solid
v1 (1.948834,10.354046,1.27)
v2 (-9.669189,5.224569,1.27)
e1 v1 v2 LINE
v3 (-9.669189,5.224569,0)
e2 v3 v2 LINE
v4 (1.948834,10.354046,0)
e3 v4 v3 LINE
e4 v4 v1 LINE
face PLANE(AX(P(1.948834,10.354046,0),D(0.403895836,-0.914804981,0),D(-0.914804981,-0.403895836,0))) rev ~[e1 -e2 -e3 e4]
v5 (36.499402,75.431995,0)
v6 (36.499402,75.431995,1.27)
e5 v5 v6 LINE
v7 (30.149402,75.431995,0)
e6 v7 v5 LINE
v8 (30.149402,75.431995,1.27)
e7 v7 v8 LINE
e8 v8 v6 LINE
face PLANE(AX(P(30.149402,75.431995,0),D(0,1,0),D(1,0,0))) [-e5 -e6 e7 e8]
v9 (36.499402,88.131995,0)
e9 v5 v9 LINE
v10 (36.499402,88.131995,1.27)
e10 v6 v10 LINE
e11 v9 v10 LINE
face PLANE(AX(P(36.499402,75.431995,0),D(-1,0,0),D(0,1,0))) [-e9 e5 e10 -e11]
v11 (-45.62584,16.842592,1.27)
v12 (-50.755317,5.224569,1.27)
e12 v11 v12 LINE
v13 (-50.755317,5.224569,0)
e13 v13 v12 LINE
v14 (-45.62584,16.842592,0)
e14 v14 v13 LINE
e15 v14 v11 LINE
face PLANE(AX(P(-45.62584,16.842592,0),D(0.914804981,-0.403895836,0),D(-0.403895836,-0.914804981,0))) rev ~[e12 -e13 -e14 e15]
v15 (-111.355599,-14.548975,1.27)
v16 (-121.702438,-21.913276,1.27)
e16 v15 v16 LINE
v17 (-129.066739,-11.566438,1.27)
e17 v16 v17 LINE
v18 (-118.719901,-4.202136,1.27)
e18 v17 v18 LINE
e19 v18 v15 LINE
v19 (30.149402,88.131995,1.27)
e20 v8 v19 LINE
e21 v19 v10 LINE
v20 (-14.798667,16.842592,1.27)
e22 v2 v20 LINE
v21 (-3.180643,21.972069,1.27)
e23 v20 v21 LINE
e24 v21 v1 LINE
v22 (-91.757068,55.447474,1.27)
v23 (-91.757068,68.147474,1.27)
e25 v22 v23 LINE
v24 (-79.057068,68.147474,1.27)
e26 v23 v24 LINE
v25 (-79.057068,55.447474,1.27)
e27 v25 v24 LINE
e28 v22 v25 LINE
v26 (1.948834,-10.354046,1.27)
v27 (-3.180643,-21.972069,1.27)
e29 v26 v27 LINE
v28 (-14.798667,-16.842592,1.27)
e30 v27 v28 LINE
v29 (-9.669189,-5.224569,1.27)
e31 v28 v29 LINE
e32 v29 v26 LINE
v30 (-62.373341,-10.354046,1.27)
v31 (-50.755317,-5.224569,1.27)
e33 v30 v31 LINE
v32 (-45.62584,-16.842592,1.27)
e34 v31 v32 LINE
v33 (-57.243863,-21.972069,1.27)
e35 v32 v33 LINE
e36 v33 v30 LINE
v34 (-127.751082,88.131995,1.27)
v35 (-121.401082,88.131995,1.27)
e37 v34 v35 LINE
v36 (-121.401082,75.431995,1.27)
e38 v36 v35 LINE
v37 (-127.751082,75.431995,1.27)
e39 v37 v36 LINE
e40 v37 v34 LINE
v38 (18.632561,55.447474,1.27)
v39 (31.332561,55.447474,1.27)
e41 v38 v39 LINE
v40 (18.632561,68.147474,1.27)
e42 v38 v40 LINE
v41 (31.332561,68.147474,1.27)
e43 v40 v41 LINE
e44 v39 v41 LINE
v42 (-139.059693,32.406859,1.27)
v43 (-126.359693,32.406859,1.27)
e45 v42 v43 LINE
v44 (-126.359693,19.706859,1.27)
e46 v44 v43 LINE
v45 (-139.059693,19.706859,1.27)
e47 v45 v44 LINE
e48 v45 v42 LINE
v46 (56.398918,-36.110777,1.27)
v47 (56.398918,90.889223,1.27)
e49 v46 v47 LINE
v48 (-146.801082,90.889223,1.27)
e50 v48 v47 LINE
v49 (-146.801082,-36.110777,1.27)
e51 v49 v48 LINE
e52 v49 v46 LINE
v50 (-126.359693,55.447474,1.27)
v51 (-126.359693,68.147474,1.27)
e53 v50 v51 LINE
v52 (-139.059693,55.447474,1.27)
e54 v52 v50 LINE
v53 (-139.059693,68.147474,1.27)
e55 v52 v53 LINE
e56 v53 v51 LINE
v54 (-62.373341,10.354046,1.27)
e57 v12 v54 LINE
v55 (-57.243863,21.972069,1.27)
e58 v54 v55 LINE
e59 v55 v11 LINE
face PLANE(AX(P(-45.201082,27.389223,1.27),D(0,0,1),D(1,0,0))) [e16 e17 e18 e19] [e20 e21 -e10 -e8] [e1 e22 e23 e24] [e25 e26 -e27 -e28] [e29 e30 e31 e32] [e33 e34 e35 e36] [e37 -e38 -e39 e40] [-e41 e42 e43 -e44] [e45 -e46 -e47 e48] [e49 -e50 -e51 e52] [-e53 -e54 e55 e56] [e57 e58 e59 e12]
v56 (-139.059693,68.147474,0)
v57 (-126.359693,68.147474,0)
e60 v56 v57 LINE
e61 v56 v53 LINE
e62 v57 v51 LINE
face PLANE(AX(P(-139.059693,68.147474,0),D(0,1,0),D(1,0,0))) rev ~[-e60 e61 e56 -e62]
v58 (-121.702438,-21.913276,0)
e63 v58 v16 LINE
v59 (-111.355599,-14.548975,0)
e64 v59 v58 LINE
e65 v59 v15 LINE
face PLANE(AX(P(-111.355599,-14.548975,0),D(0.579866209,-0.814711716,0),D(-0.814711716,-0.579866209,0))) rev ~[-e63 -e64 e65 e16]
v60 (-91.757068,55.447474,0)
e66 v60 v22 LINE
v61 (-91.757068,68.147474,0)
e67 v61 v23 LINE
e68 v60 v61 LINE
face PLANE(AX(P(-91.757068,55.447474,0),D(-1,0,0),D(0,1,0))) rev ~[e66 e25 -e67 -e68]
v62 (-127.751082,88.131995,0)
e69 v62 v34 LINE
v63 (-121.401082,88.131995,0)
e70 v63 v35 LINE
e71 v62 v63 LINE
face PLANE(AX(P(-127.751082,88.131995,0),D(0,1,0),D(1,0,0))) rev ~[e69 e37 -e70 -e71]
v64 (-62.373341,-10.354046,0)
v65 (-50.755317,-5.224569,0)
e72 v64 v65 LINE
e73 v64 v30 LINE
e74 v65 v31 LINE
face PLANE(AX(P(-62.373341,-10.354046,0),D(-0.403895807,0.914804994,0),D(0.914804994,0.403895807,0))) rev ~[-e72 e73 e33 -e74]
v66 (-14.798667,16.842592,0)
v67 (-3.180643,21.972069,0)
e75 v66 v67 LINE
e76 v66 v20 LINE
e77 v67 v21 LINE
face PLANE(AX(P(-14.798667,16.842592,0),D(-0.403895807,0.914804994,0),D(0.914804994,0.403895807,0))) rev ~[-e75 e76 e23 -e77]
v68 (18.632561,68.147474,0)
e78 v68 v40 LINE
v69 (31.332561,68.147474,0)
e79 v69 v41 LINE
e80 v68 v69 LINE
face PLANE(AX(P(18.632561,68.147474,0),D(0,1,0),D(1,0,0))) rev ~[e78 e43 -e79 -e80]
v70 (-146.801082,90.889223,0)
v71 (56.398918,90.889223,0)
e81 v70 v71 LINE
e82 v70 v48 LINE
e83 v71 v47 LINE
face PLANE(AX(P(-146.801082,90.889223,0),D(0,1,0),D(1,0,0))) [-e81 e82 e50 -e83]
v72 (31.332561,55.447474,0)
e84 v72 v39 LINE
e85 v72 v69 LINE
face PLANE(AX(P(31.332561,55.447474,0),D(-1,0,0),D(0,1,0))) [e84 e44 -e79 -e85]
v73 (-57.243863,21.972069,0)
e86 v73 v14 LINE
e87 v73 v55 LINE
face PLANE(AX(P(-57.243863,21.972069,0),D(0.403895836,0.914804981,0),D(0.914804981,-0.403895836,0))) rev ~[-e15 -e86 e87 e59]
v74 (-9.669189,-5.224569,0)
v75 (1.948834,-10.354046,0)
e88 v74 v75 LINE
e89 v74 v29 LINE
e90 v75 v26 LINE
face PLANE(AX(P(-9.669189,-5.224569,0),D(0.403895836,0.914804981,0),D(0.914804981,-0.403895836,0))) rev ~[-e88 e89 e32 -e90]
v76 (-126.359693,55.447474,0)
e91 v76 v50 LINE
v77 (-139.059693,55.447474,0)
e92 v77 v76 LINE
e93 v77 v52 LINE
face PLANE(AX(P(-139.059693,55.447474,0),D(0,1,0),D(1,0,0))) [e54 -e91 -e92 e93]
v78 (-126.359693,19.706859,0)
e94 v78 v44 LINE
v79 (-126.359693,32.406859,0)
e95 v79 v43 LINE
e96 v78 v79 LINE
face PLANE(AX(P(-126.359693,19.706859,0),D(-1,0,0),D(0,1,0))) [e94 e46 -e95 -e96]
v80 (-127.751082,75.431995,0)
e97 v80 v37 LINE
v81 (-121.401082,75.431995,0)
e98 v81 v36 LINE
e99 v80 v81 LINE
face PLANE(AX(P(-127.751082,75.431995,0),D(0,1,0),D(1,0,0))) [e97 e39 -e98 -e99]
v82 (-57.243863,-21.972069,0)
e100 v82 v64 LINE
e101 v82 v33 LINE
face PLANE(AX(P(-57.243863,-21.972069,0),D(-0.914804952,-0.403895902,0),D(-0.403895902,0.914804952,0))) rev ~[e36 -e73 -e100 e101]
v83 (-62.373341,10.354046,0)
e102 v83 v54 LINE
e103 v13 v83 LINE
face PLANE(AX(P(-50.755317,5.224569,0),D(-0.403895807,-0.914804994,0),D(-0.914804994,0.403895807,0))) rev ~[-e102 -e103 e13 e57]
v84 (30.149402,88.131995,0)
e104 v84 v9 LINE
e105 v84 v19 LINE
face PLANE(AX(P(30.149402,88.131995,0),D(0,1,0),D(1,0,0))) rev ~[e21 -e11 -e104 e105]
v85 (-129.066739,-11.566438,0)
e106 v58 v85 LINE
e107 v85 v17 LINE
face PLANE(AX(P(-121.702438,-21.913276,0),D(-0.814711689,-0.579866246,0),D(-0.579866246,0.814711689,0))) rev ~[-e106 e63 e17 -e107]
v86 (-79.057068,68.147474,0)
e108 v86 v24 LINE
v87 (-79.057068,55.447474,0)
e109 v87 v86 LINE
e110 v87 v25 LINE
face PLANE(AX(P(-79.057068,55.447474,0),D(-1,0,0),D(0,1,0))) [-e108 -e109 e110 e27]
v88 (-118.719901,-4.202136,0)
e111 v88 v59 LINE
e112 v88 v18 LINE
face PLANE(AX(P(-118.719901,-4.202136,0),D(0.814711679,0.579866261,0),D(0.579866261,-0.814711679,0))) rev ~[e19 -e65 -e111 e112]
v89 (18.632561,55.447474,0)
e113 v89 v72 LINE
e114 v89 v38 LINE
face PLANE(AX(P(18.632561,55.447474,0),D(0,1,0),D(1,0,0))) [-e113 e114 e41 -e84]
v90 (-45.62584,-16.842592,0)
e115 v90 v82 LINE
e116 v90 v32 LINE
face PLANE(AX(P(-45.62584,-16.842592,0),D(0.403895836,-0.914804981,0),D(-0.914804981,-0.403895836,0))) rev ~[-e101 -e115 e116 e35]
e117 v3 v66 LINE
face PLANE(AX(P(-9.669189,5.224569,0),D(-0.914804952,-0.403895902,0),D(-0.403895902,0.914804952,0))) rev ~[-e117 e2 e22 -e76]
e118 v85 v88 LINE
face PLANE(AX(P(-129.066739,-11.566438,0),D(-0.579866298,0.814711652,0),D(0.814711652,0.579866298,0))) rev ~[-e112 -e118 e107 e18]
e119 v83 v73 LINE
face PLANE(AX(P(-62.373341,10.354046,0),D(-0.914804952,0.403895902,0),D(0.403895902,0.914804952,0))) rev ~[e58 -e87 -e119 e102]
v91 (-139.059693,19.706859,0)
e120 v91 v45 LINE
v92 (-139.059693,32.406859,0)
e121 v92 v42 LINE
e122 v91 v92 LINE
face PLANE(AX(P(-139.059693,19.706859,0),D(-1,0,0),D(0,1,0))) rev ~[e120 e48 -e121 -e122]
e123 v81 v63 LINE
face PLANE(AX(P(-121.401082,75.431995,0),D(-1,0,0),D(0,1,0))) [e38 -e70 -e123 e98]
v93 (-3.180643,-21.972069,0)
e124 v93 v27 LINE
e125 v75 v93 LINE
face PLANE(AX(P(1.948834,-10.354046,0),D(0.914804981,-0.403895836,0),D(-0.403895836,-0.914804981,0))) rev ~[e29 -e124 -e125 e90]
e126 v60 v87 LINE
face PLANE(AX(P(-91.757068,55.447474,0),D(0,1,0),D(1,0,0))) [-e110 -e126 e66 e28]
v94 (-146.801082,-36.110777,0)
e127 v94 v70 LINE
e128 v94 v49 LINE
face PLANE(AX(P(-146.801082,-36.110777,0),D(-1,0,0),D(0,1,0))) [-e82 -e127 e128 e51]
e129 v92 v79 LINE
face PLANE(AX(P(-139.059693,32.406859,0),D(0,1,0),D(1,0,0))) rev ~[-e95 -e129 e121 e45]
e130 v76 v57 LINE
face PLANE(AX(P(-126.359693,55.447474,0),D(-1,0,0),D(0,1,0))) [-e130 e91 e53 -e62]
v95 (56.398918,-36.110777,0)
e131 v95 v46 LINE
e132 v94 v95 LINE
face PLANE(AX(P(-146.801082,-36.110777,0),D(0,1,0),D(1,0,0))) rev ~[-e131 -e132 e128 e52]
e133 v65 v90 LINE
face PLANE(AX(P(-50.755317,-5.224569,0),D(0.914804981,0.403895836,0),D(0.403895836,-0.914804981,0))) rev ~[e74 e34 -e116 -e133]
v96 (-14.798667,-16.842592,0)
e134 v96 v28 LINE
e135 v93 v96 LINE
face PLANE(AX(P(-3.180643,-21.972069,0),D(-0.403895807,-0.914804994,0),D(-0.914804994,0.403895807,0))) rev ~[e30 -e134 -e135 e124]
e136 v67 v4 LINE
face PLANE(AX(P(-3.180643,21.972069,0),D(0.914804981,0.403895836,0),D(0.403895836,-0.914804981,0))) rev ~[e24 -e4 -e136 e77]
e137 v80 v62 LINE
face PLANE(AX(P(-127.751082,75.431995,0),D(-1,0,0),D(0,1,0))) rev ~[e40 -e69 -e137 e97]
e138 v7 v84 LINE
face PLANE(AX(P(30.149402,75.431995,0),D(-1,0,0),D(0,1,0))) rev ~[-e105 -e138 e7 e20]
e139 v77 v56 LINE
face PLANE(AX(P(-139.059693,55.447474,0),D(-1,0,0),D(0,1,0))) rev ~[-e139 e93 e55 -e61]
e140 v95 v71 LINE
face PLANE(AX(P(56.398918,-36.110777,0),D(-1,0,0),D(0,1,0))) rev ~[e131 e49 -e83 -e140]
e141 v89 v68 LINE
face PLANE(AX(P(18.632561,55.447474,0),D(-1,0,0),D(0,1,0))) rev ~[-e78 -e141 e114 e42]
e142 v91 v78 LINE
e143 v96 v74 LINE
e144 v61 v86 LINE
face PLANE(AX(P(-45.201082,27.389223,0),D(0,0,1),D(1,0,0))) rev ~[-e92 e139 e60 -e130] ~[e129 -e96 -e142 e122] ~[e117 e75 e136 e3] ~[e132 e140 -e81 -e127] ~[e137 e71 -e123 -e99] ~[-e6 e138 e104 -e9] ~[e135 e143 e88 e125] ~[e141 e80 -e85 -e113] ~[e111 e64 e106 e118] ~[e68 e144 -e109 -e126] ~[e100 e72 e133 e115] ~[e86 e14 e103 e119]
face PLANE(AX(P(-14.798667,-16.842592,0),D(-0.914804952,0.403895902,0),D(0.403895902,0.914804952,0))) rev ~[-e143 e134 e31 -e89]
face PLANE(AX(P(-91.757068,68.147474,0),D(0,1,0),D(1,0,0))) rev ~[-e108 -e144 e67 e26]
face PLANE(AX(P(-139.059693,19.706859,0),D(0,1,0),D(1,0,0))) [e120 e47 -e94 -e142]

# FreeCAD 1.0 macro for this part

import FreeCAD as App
import Part
import Sketcher
from FreeCAD import Vector
Q = App.Units.Quantity

doc = App.newDocument("Part")
body = doc.addObject("PartDesign::Body", "Body")

# Sketch on XY plane
sketch1 = body.newObject("Sketcher::SketchObject", "Sketch")
sketch1.AttachmentSupport = (doc.getObject("XY_Plane"), [""])
sketch1.MapMode = "FlatFace"
sketch1.addGeometry([
    Part.LineSegment(Vector(-147, 91, 0), Vector(-147, -36, 0)),  # 0
    Part.LineSegment(Vector(-147, -36, 0), Vector(56, -36, 0)),  # 1
    Part.LineSegment(Vector(56, -36, 0), Vector(56, 91, 0)),  # 2
    Part.LineSegment(Vector(56, 91, 0), Vector(-147, 91, 0)),  # 3
    Part.LineSegment(Vector(-111, -15, 0), Vector(-122, -22, 0)),  # 4
    Part.LineSegment(Vector(-122, -22, 0), Vector(-129, -12, 0)),  # 5
    Part.LineSegment(Vector(-129, -12, 0), Vector(-119, -4, 0)),  # 6
    Part.LineSegment(Vector(-119, -4, 0), Vector(-111, -15, 0)),  # 7
    Part.LineSegment(Vector(-62, -10, 0), Vector(-51, -5, 0)),  # 8
    Part.LineSegment(Vector(-51, -5, 0), Vector(-46, -17, 0)),  # 9
    Part.LineSegment(Vector(-46, -17, 0), Vector(-57, -22, 0)),  # 10
    Part.LineSegment(Vector(-57, -22, 0), Vector(-62, -10, 0)),  # 11
    Part.LineSegment(Vector(-126, 20, 0), Vector(-139, 20, 0)),  # 12
    Part.LineSegment(Vector(-139, 20, 0), Vector(-139, 32, 0)),  # 13
    Part.LineSegment(Vector(-139, 32, 0), Vector(-126, 32, 0)),  # 14
    Part.LineSegment(Vector(-126, 32, 0), Vector(-126, 20, 0)),  # 15
    Part.LineSegment(Vector(-62, 10, 0), Vector(-57, 22, 0)),  # 16
    Part.LineSegment(Vector(-57, 22, 0), Vector(-46, 17, 0)),  # 17
    Part.LineSegment(Vector(-46, 17, 0), Vector(-51, 5, 0)),  # 18
    Part.LineSegment(Vector(-51, 5, 0), Vector(-62, 10, 0)),  # 19
    Part.LineSegment(Vector(2, -10, 0), Vector(-3, -22, 0)),  # 20
    Part.LineSegment(Vector(-3, -22, 0), Vector(-15, -17, 0)),  # 21
    Part.LineSegment(Vector(-15, -17, 0), Vector(-10, -5, 0)),  # 22
    Part.LineSegment(Vector(-10, -5, 0), Vector(2, -10, 0)),  # 23
    Part.LineSegment(Vector(2, 10, 0), Vector(-10, 5, 0)),  # 24
    Part.LineSegment(Vector(-10, 5, 0), Vector(-15, 17, 0)),  # 25
    Part.LineSegment(Vector(-15, 17, 0), Vector(-3, 22, 0)),  # 26
    Part.LineSegment(Vector(-3, 22, 0), Vector(2, 10, 0)),  # 27
    Part.LineSegment(Vector(-126, 55, 0), Vector(-139, 55, 0)),  # 28
    Part.LineSegment(Vector(-139, 55, 0), Vector(-139, 68, 0)),  # 29
    Part.LineSegment(Vector(-139, 68, 0), Vector(-126, 68, 0)),  # 30
    Part.LineSegment(Vector(-126, 68, 0), Vector(-126, 55, 0)),  # 31
    Part.LineSegment(Vector(-121, 75, 0), Vector(-128, 75, 0)),  # 32
    Part.LineSegment(Vector(-128, 75, 0), Vector(-128, 88, 0)),  # 33
    Part.LineSegment(Vector(-128, 88, 0), Vector(-121, 88, 0)),  # 34
    Part.LineSegment(Vector(-121, 88, 0), Vector(-121, 75, 0)),  # 35
    Part.LineSegment(Vector(-79, 55, 0), Vector(-92, 55, 0)),  # 36
    Part.LineSegment(Vector(-92, 55, 0), Vector(-92, 68, 0)),  # 37
    Part.LineSegment(Vector(-92, 68, 0), Vector(-79, 68, 0)),  # 38
    Part.LineSegment(Vector(-79, 68, 0), Vector(-79, 55, 0)),  # 39
    Part.LineSegment(Vector(31, 55, 0), Vector(19, 55, 0)),  # 40
    Part.LineSegment(Vector(19, 55, 0), Vector(19, 68, 0)),  # 41
    Part.LineSegment(Vector(19, 68, 0), Vector(31, 68, 0)),  # 42
    Part.LineSegment(Vector(31, 68, 0), Vector(31, 55, 0)),  # 43
    Part.LineSegment(Vector(36, 75, 0), Vector(30, 75, 0)),  # 44
    Part.LineSegment(Vector(30, 75, 0), Vector(30, 88, 0)),  # 45
    Part.LineSegment(Vector(30, 88, 0), Vector(36, 88, 0)),  # 46
    Part.LineSegment(Vector(36, 88, 0), Vector(36, 75, 0)),  # 47
], False)
sketch1.addConstraint([
    Sketcher.Constraint("Coincident", 0, 2, 1, 1),
    Sketcher.Constraint("Coincident", 1, 2, 2, 1),
    Sketcher.Constraint("Coincident", 2, 2, 3, 1),
    Sketcher.Constraint("Coincident", 3, 2, 0, 1),
    Sketcher.Constraint("Coincident", 4, 2, 5, 1),
    Sketcher.Constraint("Coincident", 5, 2, 6, 1),
    Sketcher.Constraint("Coincident", 6, 2, 7, 1),
    Sketcher.Constraint("Coincident", 7, 2, 4, 1),
    Sketcher.Constraint("Coincident", 8, 2, 9, 1),
    Sketcher.Constraint("Coincident", 9, 2, 10, 1),
    Sketcher.Constraint("Coincident", 10, 2, 11, 1),
    Sketcher.Constraint("Coincident", 11, 2, 8, 1),
    Sketcher.Constraint("Coincident", 12, 2, 13, 1),
    Sketcher.Constraint("Coincident", 13, 2, 14, 1),
    Sketcher.Constraint("Coincident", 14, 2, 15, 1),
    Sketcher.Constraint("Coincident", 15, 2, 12, 1),
    Sketcher.Constraint("Coincident", 16, 2, 17, 1),
    Sketcher.Constraint("Coincident", 17, 2, 18, 1),
    Sketcher.Constraint("Coincident", 18, 2, 19, 1),
    Sketcher.Constraint("Coincident", 19, 2, 16, 1),
    Sketcher.Constraint("Coincident", 20, 2, 21, 1),
    Sketcher.Constraint("Coincident", 21, 2, 22, 1),
    Sketcher.Constraint("Coincident", 22, 2, 23, 1),
    Sketcher.Constraint("Coincident", 23, 2, 20, 1),
    Sketcher.Constraint("Coincident", 24, 2, 25, 1),
    Sketcher.Constraint("Coincident", 25, 2, 26, 1),
    Sketcher.Constraint("Coincident", 26, 2, 27, 1),
    Sketcher.Constraint("Coincident", 27, 2, 24, 1),
    Sketcher.Constraint("Coincident", 28, 2, 29, 1),
    Sketcher.Constraint("Coincident", 29, 2, 30, 1),
    Sketcher.Constraint("Coincident", 30, 2, 31, 1),
    Sketcher.Constraint("Coincident", 31, 2, 28, 1),
    Sketcher.Constraint("Coincident", 32, 2, 33, 1),
    Sketcher.Constraint("Coincident", 33, 2, 34, 1),
    Sketcher.Constraint("Coincident", 34, 2, 35, 1),
    Sketcher.Constraint("Coincident", 35, 2, 32, 1),
    Sketcher.Constraint("Coincident", 36, 2, 37, 1),
    Sketcher.Constraint("Coincident", 37, 2, 38, 1),
    Sketcher.Constraint("Coincident", 38, 2, 39, 1),
    Sketcher.Constraint("Coincident", 39, 2, 36, 1),
    Sketcher.Constraint("Coincident", 40, 2, 41, 1),
    Sketcher.Constraint("Coincident", 41, 2, 42, 1),
    Sketcher.Constraint("Coincident", 42, 2, 43, 1),
    Sketcher.Constraint("Coincident", 43, 2, 40, 1),
    Sketcher.Constraint("Coincident", 44, 2, 45, 1),
    Sketcher.Constraint("Coincident", 45, 2, 46, 1),
    Sketcher.Constraint("Coincident", 46, 2, 47, 1),
    Sketcher.Constraint("Coincident", 47, 2, 44, 1),
    Sketcher.Constraint("Vertical", 0),
    Sketcher.Constraint("Horizontal", 1),
    Sketcher.Constraint("Vertical", 2),
    Sketcher.Constraint("Horizontal", 3),
    Sketcher.Constraint("Horizontal", 12),
    Sketcher.Constraint("Vertical", 13),
    Sketcher.Constraint("Horizontal", 14),
    Sketcher.Constraint("Vertical", 15),
    Sketcher.Constraint("Horizontal", 28),
    Sketcher.Constraint("Vertical", 29),
    Sketcher.Constraint("Horizontal", 30),
    Sketcher.Constraint("Vertical", 31),
    Sketcher.Constraint("Horizontal", 32),
    Sketcher.Constraint("Vertical", 33),
    Sketcher.Constraint("Horizontal", 34),
    Sketcher.Constraint("Vertical", 35),
    Sketcher.Constraint("Horizontal", 36),
    Sketcher.Constraint("Vertical", 37),
    Sketcher.Constraint("Horizontal", 38),
    Sketcher.Constraint("Vertical", 39),
    Sketcher.Constraint("Horizontal", 40),
    Sketcher.Constraint("Vertical", 41),
    Sketcher.Constraint("Horizontal", 42),
    Sketcher.Constraint("Vertical", 43),
    Sketcher.Constraint("Horizontal", 44),
    Sketcher.Constraint("Vertical", 45),
    Sketcher.Constraint("Horizontal", 46),
    Sketcher.Constraint("Vertical", 47),
    Sketcher.Constraint("Symmetric", 10, 2, 16, 2, -1),
    Sketcher.Constraint("Symmetric", 9, 2, 17, 2, -1),
    Sketcher.Constraint("Symmetric", 8, 2, 18, 2, -1),
    Sketcher.Constraint("Symmetric", 11, 2, 19, 2, -1),
    Sketcher.Constraint("Symmetric", 22, 2, 24, 2, -1),
    Sketcher.Constraint("Symmetric", 21, 2, 25, 2, -1),
    Sketcher.Constraint("Symmetric", 20, 2, 26, 2, -1),
    Sketcher.Constraint("Symmetric", 23, 2, 27, 2, -1),
    Sketcher.Constraint("Perpendicular", 4, 5),
    Sketcher.Constraint("Perpendicular", 5, 6),
    Sketcher.Constraint("Perpendicular", 6, 7),
    Sketcher.Constraint("Perpendicular", 8, 9),
    Sketcher.Constraint("Perpendicular", 9, 10),
    Sketcher.Constraint("Perpendicular", 10, 11),
    Sketcher.Constraint("Perpendicular", 19, 20),
    Sketcher.Constraint("Perpendicular", 20, 21),
    Sketcher.Constraint("Perpendicular", 21, 22),
    Sketcher.Constraint("Perpendicular", 22, 23),
    Sketcher.Constraint("Horizontal", 10, 2, 20, 2),
    Sketcher.Constraint("Horizontal", 9, 2, 21, 2),
    Sketcher.Constraint("Horizontal", 8, 2, 22, 2),
    Sketcher.Constraint("Horizontal", 31, 2, 36, 2),
    Sketcher.Constraint("Horizontal", 30, 2, 37, 2),
    Sketcher.Constraint("Horizontal", 39, 2, 40, 2),
    Sketcher.Constraint("Horizontal", 38, 2, 41, 2),
    Sketcher.Constraint("Horizontal", 35, 2, 44, 2),
    Sketcher.Constraint("Horizontal", 34, 2, 45, 2),
    Sketcher.Constraint("Vertical", 13, 2, 28, 2),
    Sketcher.Constraint("Vertical", 15, 2, 30, 2),
    Sketcher.Constraint("Equal", 30, 36),
    Sketcher.Constraint("Equal", 38, 40),
    Sketcher.Constraint("Equal", 34, 44),
    Sketcher.Constraint("Equal", 42, 13),
    Sketcher.Constraint("Equal", 15, 29),
    Sketcher.Constraint("Equal", 31, 33),
    Sketcher.Constraint("Equal", 4, 5),
    Sketcher.Constraint("Equal", 7, 8),
    Sketcher.Constraint("Equal", 8, 9),
    Sketcher.Constraint("DistanceX", 1, 1, 1, 2, Q("8 in")),
    Sketcher.Constraint("DistanceY", 0, 2, 0, 1, Q("5 in")),
    Sketcher.Constraint("DistanceX", 12, 2, 12, 1, Q("0.5 in")),
    Sketcher.Constraint("DistanceX", 3, 2, 34, 2, Q("1 in")),
    Sketcher.Constraint("Distance", 4, Q("0.5 in")),
    Sketcher.Constraint("DistanceX", 32, 2, 32, 1, Q("0.25 in")),
    Sketcher.Constraint("DistanceY", 9, 2, 7, 2, Q("0.0902999 in")),
    Sketcher.Constraint("DistanceX", 6, 2, -1, 1, Q("118.719901 mm")),
    Sketcher.Constraint("DistanceX", 7, 2, -1, 1, Q("111.355599 mm")),
    Sketcher.Constraint("DistanceX", -1, 1, 44, 2, Q("30.149402 mm")),
    Sketcher.Constraint("DistanceY", 0, 2, 4, 2, Q("14.197501 mm")),
    Sketcher.Constraint("DistanceX", 4, 2, 9, 2, Q("76.076598 mm")),
    Sketcher.Constraint("DistanceY", 10, 2, 8, 2, Q("16.7475 mm")),
    Sketcher.Constraint("DistanceX", 0, 2, -1, 1, Q("146.801082 mm")),
    Sketcher.Constraint("DistanceY", 8, 2, -1, 1, Q("5.224569 mm")),
    Sketcher.Constraint("DistanceY", -1, 1, 12, 2, Q("19.706859 mm")),
    Sketcher.Constraint("DistanceX", 22, 2, -1, 1, Q("9.669189 mm")),
    Sketcher.Constraint("DistanceX", 36, 2, -1, 1, Q("91.757068 mm")),
    Sketcher.Constraint("DistanceX", -1, 1, 40, 2, Q("18.632561 mm")),
    Sketcher.Constraint("DistanceX", 0, 2, 12, 2, Q("7.741389 mm")),
    Sketcher.Constraint("DistanceY", 28, 2, 3, 2, Q("35.441749 mm")),
    Sketcher.Constraint("DistanceY", 30, 2, 32, 2, Q("7.284521 mm")),
])
pad1 = body.newObject("PartDesign::Pad", "Pad")
pad1.Profile = sketch1
pad1.Length = Q("0.05 in")

doc.recompute()
